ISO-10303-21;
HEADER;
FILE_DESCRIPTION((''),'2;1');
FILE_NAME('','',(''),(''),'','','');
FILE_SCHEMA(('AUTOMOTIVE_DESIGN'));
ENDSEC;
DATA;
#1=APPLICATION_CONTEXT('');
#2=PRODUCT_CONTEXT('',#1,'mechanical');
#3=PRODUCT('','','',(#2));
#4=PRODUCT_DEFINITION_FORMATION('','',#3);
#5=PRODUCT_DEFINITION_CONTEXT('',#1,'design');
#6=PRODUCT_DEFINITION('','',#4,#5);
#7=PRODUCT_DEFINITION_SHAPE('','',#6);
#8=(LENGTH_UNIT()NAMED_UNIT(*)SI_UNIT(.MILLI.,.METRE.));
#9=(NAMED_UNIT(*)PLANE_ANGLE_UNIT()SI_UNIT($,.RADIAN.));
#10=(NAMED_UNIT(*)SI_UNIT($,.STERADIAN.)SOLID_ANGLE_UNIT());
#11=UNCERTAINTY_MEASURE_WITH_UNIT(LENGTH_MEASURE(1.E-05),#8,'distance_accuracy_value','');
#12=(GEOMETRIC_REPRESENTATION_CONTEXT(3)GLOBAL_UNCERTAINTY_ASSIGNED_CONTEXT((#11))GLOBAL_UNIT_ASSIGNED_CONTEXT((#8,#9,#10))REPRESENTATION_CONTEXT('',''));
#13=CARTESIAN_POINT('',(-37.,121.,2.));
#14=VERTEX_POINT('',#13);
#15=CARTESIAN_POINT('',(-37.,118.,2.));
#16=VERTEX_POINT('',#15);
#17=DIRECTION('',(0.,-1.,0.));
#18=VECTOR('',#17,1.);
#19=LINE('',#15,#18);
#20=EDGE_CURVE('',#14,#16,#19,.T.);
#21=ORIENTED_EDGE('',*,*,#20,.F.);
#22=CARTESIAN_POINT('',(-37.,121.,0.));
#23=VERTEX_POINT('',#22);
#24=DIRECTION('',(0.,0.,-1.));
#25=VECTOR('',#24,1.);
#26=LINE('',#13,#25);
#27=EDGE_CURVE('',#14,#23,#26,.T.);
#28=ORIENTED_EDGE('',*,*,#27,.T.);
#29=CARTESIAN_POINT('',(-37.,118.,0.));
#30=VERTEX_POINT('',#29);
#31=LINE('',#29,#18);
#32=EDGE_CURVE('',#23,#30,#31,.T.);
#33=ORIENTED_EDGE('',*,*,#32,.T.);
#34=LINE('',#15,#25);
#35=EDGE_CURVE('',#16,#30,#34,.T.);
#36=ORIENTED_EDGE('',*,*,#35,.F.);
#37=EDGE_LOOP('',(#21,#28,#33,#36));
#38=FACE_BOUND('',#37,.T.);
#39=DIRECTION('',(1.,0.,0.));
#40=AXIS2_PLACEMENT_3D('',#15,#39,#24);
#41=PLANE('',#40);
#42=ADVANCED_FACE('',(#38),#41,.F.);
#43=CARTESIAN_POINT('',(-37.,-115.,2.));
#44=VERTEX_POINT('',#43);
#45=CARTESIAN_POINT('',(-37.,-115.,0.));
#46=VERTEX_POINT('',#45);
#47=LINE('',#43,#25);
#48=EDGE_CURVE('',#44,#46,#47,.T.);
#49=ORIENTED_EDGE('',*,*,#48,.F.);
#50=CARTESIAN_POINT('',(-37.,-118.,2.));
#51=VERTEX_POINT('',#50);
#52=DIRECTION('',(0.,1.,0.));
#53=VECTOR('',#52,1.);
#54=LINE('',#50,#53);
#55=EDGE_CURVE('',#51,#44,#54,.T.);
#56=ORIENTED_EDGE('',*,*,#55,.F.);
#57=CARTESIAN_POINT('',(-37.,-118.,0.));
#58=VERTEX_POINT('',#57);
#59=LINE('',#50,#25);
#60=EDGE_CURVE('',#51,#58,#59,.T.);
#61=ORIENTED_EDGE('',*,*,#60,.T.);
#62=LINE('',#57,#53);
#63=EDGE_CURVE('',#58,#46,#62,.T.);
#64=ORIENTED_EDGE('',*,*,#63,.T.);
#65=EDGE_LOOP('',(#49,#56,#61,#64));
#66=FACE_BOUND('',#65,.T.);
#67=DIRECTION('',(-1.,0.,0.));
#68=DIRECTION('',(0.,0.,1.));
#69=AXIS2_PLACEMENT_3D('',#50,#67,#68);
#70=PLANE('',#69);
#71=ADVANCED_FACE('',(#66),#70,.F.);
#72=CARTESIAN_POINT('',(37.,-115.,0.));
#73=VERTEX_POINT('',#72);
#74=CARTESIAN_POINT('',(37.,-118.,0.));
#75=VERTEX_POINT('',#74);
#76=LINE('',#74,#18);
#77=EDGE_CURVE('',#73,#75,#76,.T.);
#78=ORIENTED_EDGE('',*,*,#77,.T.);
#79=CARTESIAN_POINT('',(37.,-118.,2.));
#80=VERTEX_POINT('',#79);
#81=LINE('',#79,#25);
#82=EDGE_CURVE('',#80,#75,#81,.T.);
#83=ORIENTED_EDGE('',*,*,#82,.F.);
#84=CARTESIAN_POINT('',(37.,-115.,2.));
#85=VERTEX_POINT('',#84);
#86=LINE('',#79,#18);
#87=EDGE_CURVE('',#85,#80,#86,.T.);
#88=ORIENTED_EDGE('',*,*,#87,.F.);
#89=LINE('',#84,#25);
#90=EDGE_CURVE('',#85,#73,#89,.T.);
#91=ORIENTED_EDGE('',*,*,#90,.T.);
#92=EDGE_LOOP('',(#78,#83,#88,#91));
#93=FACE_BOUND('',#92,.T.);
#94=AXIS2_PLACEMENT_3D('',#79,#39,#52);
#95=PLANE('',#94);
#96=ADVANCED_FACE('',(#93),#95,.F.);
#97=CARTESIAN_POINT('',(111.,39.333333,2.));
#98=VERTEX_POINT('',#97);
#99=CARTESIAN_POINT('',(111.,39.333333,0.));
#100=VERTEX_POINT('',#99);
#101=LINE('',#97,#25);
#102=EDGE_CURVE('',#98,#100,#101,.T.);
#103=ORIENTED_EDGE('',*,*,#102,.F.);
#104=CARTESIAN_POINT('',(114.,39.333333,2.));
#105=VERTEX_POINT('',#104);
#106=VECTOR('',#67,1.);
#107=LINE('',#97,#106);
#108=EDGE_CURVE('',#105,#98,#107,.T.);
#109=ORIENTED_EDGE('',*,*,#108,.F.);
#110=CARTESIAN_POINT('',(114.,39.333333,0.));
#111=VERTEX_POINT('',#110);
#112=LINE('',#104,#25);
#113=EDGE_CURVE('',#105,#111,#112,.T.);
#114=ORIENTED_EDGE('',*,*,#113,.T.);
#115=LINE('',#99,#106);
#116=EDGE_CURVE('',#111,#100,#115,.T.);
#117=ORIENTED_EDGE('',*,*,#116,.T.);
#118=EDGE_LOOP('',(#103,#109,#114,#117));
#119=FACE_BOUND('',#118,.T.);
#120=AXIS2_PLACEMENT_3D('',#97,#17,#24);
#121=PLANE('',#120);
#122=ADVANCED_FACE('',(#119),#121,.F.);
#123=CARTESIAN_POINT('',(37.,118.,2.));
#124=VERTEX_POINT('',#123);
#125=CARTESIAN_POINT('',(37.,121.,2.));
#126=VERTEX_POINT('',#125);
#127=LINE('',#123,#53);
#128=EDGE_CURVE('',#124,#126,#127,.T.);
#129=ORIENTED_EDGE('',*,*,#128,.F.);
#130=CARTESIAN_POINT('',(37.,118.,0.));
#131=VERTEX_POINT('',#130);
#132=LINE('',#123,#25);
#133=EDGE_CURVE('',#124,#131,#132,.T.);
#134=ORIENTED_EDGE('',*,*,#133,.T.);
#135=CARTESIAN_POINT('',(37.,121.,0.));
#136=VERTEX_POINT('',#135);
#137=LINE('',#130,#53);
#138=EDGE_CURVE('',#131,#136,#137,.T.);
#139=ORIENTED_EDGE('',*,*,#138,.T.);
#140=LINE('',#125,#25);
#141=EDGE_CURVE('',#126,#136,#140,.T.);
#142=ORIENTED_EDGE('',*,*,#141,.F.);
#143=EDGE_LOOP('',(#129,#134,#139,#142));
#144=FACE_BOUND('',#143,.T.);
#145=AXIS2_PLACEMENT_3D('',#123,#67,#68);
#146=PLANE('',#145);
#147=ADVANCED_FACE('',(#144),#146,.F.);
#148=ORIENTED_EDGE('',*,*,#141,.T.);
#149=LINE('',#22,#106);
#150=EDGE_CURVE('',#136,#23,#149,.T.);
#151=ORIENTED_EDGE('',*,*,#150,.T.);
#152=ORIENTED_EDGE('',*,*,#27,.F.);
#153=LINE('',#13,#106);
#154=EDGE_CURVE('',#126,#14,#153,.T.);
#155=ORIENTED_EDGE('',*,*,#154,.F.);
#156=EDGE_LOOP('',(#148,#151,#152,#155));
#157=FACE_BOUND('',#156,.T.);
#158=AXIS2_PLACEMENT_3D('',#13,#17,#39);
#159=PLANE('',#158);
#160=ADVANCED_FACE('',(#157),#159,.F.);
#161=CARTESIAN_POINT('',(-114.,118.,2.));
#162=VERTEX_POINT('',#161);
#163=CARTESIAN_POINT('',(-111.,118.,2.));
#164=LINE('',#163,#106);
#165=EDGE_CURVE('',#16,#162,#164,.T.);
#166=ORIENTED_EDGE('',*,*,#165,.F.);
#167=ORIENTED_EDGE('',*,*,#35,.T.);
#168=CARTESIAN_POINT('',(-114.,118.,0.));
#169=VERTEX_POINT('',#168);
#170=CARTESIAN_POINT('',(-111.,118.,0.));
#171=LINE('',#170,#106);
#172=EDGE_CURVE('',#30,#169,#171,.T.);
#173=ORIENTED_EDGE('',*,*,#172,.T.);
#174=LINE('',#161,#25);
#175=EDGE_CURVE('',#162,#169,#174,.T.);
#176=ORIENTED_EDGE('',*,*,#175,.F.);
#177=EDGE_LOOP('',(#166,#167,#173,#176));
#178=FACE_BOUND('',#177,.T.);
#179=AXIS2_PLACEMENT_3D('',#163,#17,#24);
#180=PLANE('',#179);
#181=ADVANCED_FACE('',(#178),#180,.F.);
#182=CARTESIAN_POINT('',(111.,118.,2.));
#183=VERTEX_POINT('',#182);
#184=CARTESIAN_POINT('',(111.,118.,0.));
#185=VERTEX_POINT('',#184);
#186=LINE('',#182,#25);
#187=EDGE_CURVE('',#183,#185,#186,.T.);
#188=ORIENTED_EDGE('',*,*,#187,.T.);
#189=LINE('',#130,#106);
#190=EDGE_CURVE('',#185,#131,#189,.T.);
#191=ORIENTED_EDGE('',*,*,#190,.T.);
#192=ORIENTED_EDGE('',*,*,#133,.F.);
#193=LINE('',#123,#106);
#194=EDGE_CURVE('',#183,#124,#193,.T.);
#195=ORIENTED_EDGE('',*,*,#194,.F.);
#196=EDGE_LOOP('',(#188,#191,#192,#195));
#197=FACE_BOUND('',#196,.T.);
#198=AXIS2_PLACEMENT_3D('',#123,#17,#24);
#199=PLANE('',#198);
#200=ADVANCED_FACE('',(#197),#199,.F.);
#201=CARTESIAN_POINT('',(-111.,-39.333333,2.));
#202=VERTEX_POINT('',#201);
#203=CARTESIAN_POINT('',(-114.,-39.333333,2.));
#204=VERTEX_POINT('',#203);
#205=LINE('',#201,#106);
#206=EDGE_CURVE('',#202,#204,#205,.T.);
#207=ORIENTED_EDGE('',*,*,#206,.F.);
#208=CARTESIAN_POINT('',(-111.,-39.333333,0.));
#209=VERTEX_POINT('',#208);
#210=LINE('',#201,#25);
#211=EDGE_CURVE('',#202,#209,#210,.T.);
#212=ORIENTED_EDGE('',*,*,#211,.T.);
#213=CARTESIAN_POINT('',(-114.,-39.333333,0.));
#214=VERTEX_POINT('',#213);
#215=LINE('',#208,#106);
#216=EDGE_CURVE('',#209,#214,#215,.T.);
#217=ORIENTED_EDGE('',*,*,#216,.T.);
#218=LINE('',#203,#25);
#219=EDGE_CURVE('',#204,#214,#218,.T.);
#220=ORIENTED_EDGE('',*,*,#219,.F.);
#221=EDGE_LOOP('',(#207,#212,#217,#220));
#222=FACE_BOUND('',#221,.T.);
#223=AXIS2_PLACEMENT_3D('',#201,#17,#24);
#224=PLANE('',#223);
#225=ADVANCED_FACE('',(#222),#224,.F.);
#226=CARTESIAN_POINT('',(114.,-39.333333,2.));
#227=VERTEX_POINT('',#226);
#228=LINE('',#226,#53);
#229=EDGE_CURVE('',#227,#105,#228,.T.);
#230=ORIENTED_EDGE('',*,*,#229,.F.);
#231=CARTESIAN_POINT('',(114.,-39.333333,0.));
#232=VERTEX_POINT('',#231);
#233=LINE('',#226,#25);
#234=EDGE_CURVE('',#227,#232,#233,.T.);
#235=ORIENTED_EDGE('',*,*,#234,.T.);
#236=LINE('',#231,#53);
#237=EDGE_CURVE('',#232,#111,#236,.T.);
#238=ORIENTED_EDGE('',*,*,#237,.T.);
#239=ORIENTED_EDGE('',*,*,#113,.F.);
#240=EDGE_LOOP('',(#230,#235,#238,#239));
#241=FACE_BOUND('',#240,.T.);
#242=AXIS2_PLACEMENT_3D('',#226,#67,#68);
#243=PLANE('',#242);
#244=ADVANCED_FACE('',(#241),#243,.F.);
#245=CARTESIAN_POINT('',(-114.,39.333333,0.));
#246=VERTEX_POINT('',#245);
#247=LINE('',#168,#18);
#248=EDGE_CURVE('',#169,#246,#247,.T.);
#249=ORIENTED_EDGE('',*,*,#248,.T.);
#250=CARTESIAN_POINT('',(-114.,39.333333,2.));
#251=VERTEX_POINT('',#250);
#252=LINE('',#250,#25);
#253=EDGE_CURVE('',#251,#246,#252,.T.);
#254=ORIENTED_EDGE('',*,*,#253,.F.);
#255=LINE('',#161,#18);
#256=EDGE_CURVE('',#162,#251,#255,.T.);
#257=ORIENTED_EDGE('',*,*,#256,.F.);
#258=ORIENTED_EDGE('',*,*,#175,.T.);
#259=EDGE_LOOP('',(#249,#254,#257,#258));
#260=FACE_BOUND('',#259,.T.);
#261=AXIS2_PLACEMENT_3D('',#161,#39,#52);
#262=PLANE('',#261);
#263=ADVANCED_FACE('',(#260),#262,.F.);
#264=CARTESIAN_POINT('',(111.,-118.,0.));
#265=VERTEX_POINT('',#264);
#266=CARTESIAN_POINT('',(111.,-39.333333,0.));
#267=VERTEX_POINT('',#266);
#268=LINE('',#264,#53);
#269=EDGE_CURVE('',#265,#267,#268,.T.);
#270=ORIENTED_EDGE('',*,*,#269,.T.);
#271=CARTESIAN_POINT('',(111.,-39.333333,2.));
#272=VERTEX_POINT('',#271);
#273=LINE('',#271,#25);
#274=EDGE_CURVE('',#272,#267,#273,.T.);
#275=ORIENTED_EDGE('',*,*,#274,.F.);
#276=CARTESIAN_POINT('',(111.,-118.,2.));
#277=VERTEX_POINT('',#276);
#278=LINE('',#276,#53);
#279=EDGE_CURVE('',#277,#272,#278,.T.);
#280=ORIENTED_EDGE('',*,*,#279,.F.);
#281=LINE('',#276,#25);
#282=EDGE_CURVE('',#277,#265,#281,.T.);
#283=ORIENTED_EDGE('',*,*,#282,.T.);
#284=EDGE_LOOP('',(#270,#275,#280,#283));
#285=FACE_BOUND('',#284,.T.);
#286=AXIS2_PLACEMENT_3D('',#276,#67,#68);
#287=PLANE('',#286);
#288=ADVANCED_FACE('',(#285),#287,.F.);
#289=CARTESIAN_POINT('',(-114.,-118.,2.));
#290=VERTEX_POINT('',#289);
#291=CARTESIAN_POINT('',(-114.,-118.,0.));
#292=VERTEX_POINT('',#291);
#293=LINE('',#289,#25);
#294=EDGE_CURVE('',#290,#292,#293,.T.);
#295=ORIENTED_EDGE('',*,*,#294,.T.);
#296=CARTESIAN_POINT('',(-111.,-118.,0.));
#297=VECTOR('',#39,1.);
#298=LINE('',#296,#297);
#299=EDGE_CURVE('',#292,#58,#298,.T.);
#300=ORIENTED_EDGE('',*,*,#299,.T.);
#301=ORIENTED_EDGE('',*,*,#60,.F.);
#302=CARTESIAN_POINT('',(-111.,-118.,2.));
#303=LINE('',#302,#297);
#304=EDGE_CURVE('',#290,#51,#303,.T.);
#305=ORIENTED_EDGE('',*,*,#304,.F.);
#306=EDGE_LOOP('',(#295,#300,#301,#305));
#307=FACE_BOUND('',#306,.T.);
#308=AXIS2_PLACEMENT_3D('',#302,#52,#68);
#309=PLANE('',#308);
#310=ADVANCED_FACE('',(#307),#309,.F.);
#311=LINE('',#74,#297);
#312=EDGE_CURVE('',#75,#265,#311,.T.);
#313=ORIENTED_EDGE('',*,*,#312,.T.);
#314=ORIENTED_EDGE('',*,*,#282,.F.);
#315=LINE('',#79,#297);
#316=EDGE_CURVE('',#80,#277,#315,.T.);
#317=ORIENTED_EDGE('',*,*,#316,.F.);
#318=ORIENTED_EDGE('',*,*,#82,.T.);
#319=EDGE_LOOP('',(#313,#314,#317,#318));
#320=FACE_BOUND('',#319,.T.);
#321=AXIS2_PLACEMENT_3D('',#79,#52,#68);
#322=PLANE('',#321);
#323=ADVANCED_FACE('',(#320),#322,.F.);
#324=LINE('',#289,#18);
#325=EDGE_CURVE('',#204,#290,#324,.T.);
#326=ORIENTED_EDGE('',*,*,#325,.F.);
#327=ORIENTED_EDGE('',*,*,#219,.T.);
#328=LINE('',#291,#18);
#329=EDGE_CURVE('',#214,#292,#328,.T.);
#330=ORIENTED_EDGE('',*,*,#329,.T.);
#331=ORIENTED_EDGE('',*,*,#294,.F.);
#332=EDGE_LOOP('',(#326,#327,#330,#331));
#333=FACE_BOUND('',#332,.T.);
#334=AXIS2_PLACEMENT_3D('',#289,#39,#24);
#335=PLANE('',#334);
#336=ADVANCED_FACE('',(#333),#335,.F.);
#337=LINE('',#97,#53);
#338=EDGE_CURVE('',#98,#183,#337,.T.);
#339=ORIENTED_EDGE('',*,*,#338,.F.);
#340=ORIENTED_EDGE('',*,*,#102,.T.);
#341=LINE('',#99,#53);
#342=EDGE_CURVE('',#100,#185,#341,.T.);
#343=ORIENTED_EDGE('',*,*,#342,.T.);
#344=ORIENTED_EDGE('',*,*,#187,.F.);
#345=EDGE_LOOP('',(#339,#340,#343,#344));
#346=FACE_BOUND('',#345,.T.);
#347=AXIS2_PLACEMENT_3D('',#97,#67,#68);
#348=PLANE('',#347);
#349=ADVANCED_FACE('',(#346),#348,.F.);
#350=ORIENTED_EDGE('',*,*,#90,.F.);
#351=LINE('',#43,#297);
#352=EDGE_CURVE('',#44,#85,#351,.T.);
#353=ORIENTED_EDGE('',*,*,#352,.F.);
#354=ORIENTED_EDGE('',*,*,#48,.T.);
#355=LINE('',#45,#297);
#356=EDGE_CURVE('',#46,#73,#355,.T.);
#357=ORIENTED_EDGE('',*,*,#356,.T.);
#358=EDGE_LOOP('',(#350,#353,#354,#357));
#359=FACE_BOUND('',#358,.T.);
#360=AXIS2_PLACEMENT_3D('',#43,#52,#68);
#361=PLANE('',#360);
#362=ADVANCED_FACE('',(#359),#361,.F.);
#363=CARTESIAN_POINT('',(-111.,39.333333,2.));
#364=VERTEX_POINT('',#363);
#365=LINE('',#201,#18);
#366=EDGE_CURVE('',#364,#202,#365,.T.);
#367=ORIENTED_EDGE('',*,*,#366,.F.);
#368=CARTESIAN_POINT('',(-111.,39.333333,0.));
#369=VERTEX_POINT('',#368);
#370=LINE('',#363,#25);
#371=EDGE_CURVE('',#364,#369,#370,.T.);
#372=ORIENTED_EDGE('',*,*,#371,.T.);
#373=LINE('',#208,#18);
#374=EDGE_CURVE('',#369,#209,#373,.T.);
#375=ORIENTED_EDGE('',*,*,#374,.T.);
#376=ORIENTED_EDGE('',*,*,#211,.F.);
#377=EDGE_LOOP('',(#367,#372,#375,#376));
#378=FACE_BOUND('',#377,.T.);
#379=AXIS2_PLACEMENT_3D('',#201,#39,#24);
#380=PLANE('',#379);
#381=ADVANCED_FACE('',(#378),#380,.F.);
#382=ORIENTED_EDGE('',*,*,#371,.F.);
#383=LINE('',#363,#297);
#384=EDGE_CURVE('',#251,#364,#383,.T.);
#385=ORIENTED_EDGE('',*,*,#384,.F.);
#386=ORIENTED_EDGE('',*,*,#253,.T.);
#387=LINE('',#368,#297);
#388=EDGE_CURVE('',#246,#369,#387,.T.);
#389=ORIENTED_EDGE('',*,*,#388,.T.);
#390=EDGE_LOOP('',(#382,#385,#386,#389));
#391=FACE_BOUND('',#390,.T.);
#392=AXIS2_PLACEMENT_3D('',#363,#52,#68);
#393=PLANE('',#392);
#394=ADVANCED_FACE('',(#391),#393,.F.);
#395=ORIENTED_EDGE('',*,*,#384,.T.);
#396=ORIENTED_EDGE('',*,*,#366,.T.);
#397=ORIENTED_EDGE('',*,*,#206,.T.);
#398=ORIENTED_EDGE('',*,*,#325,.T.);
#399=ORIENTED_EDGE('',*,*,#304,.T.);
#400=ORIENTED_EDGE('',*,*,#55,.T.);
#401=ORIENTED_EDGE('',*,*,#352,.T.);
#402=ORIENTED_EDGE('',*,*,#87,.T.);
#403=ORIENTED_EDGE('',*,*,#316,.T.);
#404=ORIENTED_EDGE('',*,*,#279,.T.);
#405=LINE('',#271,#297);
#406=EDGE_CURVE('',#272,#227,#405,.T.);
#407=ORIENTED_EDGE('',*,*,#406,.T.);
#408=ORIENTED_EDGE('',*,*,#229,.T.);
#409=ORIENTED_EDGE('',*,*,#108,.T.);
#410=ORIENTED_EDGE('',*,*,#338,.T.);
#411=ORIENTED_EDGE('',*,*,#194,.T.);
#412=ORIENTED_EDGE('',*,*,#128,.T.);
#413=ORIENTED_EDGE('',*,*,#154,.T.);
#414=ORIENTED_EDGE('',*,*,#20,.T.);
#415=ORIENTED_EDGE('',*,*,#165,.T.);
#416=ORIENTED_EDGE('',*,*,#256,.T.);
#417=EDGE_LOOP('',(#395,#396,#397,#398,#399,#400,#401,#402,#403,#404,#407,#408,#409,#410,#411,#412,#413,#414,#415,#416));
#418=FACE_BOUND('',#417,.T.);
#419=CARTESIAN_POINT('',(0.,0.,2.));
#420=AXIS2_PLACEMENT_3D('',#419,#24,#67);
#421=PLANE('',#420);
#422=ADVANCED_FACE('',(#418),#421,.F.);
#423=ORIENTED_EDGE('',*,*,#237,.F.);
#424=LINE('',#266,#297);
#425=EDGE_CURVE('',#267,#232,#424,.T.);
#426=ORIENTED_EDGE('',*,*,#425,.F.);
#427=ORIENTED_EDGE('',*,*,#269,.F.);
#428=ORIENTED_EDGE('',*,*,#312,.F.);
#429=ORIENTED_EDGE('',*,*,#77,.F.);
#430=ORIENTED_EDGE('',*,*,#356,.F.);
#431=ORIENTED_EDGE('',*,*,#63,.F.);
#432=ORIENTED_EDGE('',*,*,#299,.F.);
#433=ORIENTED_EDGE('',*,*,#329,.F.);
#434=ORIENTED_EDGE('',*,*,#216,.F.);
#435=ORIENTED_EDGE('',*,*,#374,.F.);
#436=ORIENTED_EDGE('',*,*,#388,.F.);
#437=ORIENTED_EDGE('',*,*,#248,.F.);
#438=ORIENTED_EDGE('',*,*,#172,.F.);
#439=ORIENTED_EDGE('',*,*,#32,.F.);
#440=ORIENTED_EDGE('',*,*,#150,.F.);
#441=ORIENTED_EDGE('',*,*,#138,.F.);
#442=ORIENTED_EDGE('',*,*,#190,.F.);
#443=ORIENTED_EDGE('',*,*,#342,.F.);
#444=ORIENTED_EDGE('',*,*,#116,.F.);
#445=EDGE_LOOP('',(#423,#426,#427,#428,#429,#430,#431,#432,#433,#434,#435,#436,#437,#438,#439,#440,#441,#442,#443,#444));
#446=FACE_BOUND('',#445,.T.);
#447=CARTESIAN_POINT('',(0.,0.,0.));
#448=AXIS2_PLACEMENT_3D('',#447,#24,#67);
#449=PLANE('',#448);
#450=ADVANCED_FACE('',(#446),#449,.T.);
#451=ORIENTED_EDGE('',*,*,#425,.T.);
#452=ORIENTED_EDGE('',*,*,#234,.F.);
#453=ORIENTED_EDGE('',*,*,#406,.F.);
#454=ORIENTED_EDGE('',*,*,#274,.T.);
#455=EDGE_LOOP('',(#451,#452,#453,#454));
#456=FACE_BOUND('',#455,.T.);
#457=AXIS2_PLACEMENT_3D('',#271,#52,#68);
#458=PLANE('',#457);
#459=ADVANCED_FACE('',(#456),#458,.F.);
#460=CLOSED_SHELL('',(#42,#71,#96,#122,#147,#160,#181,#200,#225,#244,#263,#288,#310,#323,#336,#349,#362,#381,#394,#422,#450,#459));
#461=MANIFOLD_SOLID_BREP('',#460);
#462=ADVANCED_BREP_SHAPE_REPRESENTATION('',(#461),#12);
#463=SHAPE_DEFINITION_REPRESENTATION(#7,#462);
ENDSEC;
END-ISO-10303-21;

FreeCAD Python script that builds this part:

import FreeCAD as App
import Part
import Sketcher

V = App.Vector
Q = App.Units.Quantity


def add_polygon(sketch, points):
    """Adds a closed chain of lines whose ends are joined by coincident constraints."""
    first, n = sketch.GeometryCount, len(points)
    for a, b in zip(points, points[1:] + points[:1]):
        sketch.addGeometry(Part.LineSegment(App.Vector(*a, 0), App.Vector(*b, 0)), False)
    for i in range(n):
        sketch.addConstraint(Sketcher.Constraint("Coincident", first + i, 2, first + (i + 1) % n, 1))

doc = App.newDocument("Part")
body = doc.addObject("PartDesign::Body", "Body")

sketch1 = body.newObject("Sketcher::SketchObject", "Sketch")
sketch1.AttachmentSupport = (doc.getObject("XY_Plane"), [""])
sketch1.MapMode = "FlatFace"
add_polygon(sketch1, [(37, -118), (111, -118), (111, -39.3), (114, -39.3), (114, 39.3), (111, 39.3), (111, 118), (37, 118), (37, 121), (-37, 121), (-37, 118), (-114, 118), (-114, 39.3), (-111, 39.3), (-111, -39.3), (-114, -39.3), (-114, -118), (-37, -118), (-37, -115), (37, -115)])
sketch1.addConstraint([
    Sketcher.Constraint("Horizontal", 0),
    Sketcher.Constraint("Vertical", 1),
    Sketcher.Constraint("Horizontal", 2),
    Sketcher.Constraint("Vertical", 3),
    Sketcher.Constraint("Horizontal", 4),
    Sketcher.Constraint("Vertical", 5),
    Sketcher.Constraint("Horizontal", 6),
    Sketcher.Constraint("Vertical", 7),
    Sketcher.Constraint("Horizontal", 8),
    Sketcher.Constraint("Vertical", 9),
    Sketcher.Constraint("Horizontal", 10),
    Sketcher.Constraint("Vertical", 11),
    Sketcher.Constraint("Horizontal", 12),
    Sketcher.Constraint("Vertical", 13),
    Sketcher.Constraint("Horizontal", 14),
    Sketcher.Constraint("Vertical", 15),
    Sketcher.Constraint("Horizontal", 16),
    Sketcher.Constraint("Vertical", 17),
    Sketcher.Constraint("Horizontal", 18),
    Sketcher.Constraint("Vertical", 19),
    Sketcher.Constraint("Symmetric", 2, 2, 11, 2, -1, 1),
    Sketcher.Constraint("Symmetric", 4, 2, 13, 2, -1, 1),
    Sketcher.Constraint("Symmetric", 6, 2, 16, 2, -1, 1),
    Sketcher.Constraint("Symmetric", 9, 2, 19, 2, -1, 1),
    Sketcher.Constraint("Symmetric", 6, 2, 9, 2, -2),
    Sketcher.Constraint("Symmetric", 1, 2, 13, 2, -2),
    Sketcher.Constraint("Vertical", 11, 2, 14, 2),
    Sketcher.Constraint("Equal", 6, 8),
    Sketcher.Constraint("Equal", 1, 3),
    Sketcher.Constraint("Equal", 14, 7),
    Sketcher.Constraint("Equal", 9, 17),
    Sketcher.Constraint("DistanceX", 0, 1, 0, 2, Q("74 mm")),
    Sketcher.Constraint("DistanceX", 2, 1, 2, 2, Q("3 mm")),
    Sketcher.Constraint("DistanceY", 0, 2, -1, 1, Q("118 mm")),
])
pad1 = body.newObject("PartDesign::Pad", "Pad")
pad1.Profile = sketch1
pad1.Length = 2

doc.recompute()
